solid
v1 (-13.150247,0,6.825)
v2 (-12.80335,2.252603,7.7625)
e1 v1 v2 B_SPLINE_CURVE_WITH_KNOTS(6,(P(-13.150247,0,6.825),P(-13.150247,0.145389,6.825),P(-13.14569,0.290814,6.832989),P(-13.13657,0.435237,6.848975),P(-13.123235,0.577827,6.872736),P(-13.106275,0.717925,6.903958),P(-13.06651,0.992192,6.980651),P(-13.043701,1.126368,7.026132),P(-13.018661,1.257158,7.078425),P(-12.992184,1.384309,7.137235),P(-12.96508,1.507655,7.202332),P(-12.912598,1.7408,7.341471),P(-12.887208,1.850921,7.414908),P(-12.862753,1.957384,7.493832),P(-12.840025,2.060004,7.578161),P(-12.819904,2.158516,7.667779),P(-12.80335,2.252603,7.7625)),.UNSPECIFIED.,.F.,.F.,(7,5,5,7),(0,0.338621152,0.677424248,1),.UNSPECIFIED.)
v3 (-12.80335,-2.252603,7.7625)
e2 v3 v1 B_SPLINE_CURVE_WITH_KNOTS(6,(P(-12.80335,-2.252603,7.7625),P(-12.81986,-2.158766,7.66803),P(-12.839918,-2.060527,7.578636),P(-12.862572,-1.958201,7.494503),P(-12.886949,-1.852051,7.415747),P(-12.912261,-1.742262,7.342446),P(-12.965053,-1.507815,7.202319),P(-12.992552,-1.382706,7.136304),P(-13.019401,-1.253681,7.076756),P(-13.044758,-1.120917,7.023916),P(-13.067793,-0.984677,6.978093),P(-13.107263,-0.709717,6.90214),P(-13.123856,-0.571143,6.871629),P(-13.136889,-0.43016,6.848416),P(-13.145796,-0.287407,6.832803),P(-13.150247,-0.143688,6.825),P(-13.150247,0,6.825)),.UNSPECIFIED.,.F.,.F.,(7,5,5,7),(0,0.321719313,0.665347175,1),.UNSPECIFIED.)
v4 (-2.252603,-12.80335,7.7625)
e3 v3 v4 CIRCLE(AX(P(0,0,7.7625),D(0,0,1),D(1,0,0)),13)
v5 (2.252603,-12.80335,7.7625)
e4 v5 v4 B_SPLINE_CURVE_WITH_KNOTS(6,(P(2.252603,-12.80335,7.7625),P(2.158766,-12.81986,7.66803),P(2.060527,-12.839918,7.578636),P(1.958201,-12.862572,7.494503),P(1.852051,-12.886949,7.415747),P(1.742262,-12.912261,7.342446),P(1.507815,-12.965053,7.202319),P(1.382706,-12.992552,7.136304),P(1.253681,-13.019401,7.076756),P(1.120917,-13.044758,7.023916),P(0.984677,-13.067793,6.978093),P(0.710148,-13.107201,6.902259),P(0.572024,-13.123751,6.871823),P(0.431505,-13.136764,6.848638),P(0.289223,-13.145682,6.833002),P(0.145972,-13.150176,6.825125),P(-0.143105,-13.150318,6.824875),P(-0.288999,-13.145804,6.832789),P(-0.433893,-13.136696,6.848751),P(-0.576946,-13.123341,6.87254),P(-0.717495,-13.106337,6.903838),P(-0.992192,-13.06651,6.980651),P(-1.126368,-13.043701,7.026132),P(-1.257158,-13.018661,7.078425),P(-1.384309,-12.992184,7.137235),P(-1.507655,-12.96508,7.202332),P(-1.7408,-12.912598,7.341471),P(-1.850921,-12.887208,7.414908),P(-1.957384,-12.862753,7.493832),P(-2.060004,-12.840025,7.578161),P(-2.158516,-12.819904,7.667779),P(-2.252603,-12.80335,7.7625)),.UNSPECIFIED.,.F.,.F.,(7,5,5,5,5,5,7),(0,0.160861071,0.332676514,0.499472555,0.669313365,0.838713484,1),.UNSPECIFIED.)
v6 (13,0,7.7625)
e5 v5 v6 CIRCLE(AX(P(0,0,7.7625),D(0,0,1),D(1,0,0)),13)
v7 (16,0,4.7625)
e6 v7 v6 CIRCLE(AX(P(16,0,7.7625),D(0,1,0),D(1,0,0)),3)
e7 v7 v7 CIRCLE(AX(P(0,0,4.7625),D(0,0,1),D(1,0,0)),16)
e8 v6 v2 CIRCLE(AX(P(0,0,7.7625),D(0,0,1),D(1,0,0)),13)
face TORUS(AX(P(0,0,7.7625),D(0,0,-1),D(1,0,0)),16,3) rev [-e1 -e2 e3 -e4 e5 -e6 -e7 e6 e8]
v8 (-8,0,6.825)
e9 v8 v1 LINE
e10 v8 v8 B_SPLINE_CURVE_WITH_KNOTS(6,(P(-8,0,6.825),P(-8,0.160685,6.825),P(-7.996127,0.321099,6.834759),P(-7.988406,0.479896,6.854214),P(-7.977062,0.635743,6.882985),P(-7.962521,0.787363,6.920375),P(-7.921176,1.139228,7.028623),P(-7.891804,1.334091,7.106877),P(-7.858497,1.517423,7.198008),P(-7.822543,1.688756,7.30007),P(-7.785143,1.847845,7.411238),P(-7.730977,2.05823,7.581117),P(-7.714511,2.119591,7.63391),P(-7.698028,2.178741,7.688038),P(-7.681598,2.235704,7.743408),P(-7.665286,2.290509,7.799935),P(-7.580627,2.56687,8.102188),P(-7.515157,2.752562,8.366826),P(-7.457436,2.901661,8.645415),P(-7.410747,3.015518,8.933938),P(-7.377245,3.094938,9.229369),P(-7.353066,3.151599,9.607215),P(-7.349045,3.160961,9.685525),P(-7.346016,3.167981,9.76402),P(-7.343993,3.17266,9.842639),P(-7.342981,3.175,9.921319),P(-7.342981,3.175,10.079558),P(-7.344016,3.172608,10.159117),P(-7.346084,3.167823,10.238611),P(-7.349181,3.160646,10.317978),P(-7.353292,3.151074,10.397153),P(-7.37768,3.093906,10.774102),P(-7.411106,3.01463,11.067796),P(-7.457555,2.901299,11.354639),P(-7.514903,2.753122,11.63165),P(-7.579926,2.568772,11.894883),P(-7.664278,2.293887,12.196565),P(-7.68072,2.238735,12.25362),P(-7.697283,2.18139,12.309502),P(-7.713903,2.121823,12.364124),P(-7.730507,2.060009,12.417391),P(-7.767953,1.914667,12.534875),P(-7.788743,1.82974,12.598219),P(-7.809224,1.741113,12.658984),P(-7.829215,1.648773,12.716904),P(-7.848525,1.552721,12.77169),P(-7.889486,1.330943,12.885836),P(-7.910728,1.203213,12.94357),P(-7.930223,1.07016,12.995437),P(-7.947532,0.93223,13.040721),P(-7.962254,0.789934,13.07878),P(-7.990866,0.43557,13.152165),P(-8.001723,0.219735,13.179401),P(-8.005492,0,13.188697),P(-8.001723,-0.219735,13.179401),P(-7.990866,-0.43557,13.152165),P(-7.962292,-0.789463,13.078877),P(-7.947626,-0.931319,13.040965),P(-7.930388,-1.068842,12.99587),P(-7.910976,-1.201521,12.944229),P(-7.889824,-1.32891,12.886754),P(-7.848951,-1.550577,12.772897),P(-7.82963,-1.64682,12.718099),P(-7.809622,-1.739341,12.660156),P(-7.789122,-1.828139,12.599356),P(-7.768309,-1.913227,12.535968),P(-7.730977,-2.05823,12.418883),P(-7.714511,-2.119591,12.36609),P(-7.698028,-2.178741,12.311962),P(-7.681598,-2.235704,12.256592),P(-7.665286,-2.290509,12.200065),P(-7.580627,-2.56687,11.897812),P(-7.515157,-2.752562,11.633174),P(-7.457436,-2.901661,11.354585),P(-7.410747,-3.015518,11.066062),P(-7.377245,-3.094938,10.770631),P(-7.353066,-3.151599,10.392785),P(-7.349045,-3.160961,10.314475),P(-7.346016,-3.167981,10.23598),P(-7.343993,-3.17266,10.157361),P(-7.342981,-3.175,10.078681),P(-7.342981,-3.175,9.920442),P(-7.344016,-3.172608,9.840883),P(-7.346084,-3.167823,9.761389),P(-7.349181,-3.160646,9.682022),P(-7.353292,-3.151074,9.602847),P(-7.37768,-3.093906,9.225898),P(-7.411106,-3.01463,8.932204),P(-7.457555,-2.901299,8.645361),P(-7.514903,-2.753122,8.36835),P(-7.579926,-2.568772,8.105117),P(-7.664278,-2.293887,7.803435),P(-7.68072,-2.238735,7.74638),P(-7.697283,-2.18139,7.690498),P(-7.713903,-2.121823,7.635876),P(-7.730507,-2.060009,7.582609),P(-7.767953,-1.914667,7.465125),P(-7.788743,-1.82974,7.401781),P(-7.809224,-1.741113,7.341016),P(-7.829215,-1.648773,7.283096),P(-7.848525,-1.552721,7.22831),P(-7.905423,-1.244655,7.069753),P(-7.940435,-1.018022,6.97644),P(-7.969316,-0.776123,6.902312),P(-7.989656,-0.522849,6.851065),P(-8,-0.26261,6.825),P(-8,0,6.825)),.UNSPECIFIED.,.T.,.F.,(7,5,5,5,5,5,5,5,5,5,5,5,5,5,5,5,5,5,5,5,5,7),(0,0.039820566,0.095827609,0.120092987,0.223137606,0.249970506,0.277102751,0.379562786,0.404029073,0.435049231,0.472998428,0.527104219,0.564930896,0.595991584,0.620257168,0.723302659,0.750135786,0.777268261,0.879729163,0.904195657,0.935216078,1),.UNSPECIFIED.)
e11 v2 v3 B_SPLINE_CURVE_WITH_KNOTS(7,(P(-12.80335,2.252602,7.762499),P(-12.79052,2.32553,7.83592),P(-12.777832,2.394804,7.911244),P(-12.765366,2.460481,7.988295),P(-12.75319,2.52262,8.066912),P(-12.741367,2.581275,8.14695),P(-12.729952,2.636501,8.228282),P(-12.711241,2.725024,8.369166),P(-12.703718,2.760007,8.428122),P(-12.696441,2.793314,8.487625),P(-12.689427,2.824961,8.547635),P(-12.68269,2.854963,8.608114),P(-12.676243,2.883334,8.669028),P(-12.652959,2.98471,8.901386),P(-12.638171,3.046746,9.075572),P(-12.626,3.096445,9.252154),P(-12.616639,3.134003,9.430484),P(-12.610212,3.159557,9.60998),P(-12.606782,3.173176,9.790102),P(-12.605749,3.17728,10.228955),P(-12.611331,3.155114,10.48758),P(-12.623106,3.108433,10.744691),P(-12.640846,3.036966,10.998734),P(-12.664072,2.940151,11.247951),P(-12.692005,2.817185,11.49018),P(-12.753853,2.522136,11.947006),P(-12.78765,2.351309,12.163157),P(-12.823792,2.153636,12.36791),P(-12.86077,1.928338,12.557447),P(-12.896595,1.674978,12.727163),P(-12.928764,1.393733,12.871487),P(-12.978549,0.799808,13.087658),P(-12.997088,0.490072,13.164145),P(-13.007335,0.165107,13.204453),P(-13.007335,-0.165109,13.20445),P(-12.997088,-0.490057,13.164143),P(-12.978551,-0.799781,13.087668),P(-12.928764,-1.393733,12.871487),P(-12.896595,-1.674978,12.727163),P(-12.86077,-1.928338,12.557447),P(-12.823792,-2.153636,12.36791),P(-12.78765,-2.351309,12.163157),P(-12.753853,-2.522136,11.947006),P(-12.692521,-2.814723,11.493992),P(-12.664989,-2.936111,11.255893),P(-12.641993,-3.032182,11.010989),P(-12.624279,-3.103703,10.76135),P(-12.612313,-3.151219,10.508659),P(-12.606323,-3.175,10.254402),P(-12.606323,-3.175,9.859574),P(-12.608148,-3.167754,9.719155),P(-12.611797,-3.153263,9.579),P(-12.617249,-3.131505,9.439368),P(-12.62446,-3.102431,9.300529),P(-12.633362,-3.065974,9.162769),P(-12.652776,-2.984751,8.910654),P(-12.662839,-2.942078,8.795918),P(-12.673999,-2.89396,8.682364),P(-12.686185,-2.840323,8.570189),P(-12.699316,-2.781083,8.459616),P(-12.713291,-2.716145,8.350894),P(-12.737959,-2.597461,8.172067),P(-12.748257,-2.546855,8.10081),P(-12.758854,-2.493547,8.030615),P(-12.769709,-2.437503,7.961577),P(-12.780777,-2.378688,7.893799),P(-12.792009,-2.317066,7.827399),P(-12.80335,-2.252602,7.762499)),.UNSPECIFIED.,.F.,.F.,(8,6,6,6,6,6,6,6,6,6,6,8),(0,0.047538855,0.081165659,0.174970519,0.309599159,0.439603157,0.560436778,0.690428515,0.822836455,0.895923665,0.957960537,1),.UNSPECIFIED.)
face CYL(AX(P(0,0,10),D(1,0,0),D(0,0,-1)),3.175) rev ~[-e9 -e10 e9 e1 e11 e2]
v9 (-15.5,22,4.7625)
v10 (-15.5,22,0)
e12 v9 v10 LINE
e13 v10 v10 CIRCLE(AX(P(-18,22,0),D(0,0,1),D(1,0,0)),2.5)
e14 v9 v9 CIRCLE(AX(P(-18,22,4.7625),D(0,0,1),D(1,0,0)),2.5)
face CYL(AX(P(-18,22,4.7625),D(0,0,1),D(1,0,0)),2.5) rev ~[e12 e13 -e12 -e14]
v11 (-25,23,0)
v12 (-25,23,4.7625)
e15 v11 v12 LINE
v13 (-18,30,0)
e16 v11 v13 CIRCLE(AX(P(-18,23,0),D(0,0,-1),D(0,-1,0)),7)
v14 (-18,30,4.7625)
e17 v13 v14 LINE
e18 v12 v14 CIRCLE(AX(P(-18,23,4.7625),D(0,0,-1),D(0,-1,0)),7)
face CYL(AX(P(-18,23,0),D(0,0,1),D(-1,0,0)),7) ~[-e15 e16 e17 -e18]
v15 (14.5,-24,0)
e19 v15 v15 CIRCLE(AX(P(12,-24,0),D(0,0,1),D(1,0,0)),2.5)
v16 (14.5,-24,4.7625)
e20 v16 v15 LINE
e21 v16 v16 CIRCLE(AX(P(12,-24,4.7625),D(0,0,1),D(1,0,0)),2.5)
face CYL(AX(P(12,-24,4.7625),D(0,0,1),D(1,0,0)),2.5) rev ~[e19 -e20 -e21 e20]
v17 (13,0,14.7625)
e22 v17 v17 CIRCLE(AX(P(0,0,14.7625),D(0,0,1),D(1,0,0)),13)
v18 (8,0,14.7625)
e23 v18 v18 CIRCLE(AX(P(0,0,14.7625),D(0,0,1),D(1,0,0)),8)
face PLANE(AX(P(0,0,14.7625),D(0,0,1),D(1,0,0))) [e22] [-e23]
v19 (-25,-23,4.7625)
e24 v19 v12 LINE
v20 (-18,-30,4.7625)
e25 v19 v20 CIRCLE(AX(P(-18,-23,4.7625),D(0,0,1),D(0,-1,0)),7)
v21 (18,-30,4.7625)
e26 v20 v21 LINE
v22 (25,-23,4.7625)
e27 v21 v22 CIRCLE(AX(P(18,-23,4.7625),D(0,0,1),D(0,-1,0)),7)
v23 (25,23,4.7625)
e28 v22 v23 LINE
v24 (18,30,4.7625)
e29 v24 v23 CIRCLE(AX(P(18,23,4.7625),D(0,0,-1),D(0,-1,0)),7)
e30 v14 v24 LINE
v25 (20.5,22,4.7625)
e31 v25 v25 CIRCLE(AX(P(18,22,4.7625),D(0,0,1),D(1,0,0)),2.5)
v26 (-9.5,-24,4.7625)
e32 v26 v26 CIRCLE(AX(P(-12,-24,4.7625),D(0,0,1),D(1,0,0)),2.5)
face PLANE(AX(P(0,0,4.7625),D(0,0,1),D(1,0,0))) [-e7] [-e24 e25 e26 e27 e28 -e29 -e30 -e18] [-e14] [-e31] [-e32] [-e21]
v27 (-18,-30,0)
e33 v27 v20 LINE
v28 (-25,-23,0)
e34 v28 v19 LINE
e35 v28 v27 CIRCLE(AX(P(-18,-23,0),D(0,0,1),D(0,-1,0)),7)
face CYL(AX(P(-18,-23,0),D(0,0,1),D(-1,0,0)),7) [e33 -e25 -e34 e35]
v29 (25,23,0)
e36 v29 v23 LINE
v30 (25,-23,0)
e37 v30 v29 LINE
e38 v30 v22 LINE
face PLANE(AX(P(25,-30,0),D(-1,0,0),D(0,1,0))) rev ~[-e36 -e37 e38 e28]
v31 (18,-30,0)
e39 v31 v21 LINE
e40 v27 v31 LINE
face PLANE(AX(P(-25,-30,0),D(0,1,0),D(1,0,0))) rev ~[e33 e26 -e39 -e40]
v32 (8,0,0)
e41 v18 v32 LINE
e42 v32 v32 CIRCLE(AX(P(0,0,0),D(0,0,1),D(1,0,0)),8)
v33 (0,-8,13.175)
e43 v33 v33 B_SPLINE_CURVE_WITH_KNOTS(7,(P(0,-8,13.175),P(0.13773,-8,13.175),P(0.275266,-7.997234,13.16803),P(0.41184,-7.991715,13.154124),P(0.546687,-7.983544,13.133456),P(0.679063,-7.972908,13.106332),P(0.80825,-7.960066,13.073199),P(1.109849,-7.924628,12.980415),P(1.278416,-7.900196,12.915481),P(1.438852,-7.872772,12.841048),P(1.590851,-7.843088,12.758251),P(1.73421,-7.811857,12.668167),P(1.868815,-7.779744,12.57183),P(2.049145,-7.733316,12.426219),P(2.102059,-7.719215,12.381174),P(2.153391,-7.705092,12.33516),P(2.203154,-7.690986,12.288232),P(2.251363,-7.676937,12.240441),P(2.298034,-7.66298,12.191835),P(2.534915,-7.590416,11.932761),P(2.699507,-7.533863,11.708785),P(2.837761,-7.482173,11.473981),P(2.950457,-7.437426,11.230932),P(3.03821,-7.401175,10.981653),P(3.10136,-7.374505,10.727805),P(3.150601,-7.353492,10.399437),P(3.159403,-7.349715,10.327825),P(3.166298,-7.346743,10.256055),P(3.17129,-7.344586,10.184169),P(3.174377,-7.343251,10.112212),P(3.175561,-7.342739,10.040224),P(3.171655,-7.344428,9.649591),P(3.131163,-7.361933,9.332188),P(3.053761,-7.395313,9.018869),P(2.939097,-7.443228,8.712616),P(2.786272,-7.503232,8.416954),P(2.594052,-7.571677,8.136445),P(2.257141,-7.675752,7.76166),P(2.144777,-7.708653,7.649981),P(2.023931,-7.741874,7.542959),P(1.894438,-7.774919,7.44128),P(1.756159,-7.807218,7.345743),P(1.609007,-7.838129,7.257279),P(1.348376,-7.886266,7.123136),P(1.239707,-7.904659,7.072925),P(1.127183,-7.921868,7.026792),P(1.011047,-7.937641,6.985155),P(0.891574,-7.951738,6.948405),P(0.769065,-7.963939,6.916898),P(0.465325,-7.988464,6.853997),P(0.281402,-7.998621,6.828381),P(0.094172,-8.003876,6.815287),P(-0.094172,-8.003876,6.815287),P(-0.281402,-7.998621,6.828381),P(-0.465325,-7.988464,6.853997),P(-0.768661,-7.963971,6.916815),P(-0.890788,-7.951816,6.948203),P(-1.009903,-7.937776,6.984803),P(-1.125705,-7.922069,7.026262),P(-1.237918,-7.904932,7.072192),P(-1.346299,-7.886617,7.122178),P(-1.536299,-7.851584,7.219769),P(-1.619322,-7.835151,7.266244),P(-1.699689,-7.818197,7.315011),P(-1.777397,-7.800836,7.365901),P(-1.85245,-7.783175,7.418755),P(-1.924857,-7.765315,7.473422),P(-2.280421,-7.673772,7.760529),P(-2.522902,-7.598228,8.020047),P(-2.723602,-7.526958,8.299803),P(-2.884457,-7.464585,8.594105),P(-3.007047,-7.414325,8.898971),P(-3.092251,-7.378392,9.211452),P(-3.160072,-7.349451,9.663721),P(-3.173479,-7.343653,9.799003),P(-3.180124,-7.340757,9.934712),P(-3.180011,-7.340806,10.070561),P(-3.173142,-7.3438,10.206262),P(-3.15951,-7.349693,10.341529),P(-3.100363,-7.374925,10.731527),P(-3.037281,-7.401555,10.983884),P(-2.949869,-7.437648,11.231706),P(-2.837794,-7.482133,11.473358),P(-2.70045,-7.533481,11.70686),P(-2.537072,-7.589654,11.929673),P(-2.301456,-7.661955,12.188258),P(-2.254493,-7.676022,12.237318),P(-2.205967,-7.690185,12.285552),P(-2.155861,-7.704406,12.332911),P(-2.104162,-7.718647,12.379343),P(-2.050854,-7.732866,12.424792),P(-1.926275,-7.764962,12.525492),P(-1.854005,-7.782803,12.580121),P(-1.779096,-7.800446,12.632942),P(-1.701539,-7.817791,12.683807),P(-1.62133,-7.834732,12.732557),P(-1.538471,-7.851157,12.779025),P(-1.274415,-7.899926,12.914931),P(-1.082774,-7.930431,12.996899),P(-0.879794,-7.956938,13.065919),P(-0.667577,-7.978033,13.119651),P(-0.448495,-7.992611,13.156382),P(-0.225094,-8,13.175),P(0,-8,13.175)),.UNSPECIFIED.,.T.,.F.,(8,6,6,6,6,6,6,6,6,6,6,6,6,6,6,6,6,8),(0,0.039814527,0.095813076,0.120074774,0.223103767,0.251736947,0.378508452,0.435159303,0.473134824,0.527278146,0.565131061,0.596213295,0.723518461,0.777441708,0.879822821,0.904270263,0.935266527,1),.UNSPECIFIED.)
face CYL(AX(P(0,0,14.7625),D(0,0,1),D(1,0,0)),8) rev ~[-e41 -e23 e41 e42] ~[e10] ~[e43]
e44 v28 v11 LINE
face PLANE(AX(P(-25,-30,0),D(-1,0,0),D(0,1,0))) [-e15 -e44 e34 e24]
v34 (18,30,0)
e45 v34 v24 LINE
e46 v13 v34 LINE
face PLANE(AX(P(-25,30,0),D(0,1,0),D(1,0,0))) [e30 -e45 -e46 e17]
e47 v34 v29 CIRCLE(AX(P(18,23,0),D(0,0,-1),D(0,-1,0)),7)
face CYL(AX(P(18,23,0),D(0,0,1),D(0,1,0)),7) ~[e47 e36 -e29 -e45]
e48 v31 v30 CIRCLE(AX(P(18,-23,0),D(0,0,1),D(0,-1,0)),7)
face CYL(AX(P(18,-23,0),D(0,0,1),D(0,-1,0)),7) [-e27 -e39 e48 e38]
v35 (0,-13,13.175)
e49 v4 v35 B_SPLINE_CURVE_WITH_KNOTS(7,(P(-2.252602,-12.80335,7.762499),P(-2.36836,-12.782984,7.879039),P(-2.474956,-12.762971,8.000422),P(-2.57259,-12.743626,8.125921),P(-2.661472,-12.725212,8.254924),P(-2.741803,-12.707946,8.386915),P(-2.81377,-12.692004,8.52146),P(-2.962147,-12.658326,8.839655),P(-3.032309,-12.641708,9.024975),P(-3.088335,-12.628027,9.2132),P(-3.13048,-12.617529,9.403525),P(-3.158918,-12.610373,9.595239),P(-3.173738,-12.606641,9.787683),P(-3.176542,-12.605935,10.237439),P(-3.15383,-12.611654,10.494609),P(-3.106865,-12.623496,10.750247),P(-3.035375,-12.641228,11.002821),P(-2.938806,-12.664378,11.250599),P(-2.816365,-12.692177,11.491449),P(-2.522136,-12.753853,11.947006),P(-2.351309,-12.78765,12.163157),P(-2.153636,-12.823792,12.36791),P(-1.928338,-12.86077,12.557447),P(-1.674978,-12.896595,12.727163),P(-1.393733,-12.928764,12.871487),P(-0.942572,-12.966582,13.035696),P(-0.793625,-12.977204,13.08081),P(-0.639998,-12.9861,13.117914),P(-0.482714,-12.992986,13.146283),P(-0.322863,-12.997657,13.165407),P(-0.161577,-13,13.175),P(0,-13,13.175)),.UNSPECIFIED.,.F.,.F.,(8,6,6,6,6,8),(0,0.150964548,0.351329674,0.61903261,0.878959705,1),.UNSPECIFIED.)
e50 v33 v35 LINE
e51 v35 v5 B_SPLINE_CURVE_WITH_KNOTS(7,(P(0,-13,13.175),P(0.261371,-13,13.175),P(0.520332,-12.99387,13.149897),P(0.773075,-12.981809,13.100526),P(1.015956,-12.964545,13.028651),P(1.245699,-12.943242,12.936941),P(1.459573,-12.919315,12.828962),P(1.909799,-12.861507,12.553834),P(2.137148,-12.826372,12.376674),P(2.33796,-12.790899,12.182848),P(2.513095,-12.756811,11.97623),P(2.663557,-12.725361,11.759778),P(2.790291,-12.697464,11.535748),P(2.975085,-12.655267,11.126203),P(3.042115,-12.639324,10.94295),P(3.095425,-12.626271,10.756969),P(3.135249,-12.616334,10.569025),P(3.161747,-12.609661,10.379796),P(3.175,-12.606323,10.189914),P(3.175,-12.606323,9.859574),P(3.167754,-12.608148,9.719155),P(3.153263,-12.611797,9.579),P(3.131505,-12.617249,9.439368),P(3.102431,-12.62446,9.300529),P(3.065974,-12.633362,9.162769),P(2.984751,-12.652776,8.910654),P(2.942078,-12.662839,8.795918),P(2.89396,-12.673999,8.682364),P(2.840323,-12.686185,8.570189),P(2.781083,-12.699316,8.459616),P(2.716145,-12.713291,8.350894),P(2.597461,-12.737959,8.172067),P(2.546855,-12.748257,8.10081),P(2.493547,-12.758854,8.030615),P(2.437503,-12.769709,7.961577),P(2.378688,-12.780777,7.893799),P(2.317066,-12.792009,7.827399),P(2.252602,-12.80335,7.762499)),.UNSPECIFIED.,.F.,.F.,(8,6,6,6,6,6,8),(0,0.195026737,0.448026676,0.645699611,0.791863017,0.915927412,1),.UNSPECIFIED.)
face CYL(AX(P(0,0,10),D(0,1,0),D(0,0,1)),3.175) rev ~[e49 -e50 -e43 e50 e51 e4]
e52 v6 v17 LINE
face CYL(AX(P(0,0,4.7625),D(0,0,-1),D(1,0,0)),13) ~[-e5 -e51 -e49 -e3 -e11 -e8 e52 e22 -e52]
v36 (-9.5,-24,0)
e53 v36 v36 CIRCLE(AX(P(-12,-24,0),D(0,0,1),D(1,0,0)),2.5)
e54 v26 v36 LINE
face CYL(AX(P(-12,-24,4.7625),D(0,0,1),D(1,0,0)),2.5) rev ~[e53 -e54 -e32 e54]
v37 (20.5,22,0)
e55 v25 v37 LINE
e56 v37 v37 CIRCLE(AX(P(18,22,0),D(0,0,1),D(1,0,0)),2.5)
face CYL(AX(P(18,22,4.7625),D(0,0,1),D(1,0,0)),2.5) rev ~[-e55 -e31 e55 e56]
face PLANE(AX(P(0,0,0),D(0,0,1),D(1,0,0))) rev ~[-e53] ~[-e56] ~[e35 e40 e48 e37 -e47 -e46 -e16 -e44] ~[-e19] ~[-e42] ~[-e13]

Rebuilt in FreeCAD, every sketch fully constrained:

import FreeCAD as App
import Part
import Sketcher

V = App.Vector


def edges_at(feature, points):
    """Names of the edges that pass closest to the given points."""
    edges = feature.Shape.Edges
    near = lambda p: min(range(len(edges)), key=lambda i: edges[i].distToShape(Part.Vertex(*p))[0])
    return sorted({f"Edge{near(p) + 1}" for p in points})


def add_polygon(sketch, points):
    """Adds a closed chain of lines whose ends are joined by coincident constraints."""
    first, n = sketch.GeometryCount, len(points)
    for a, b in zip(points, points[1:] + points[:1]):
        sketch.addGeometry(Part.LineSegment(App.Vector(*a, 0), App.Vector(*b, 0)), False)
    for i in range(n):
        sketch.addConstraint(Sketcher.Constraint("Coincident", first + i, 2, first + (i + 1) % n, 1))

doc = App.newDocument("Part")
body = doc.addObject("PartDesign::Body", "Body")

# Sketch on XY plane
sketch1 = doc.addObject("Sketcher::SketchObject", "Sketch")
body.addObject(sketch1)
sketch1.AttachmentSupport = (doc.XY_Plane, [""])
sketch1.MapMode = "FlatFace"
add_polygon(sketch1, [(-25, 30), (-25, -30), (25, -30), (25, 30)])  # lines 0-3
sketch1.addConstraint([
    Sketcher.Constraint("Vertical", 0),
    Sketcher.Constraint("Horizontal", 1),
    Sketcher.Constraint("Vertical", 2),
    Sketcher.Constraint("Horizontal", 3),
    Sketcher.Constraint("Symmetric", 0, 2, 2, 2, -1, 1),
    Sketcher.Constraint("DistanceX", 1, 1, 1, 2, 50.0),
    Sketcher.Constraint("DistanceY", 0, 2, 0, 1, 60.0),
])
pad1 = doc.addObject("PartDesign::Pad", "Pad")
body.addObject(pad1)
pad1.Profile = sketch1
pad1.Length = 4.7625

# Sketch on XY plane
sketch2 = doc.addObject("Sketcher::SketchObject", "Sketch001")
body.addObject(sketch2)
sketch2.AttachmentSupport = (doc.XY_Plane, [""])
sketch2.MapMode = "FlatFace"
sketch2.AttachmentOffset = App.Placement(V(0, 0, 4.7625), App.Rotation())
sketch2.addGeometry(Part.Circle(V(0, 0, 0), V(0, 0, 1), 13), False)
sketch2.addConstraint([
    Sketcher.Constraint("Coincident", 0, 3, -1, 1),
    Sketcher.Constraint("Diameter", 0, 26.0),
])
pad2 = doc.addObject("PartDesign::Pad", "Pad001")
body.addObject(pad2)
pad2.Profile = sketch2
pad2.Length = 10

# Sketch on XY plane
sketch3 = doc.addObject("Sketcher::SketchObject", "Sketch002")
body.addObject(sketch3)
sketch3.AttachmentSupport = (doc.XY_Plane, [""])
sketch3.MapMode = "FlatFace"
sketch3.AttachmentOffset = App.Placement(V(0, 0, 14.7625), App.Rotation())
sketch3.addGeometry(Part.Circle(V(0, 0, 0), V(0, 0, 1), 8), False)
sketch3.addConstraint([
    Sketcher.Constraint("Coincident", 0, 3, -1, 1),
    Sketcher.Constraint("Diameter", 0, 16.0),
])
pocket1 = doc.addObject("PartDesign::Pocket", "Pocket")
body.addObject(pocket1)
pocket1.Profile = sketch3
pocket1.Type = "ThroughAll"

# Sketch on XY plane
sketch4 = doc.addObject("Sketcher::SketchObject", "Sketch003")
body.addObject(sketch4)
sketch4.AttachmentSupport = (doc.XY_Plane, [""])
sketch4.MapMode = "FlatFace"
sketch4.AttachmentOffset = App.Placement(V(0, 0, 4.7625), App.Rotation())
sketch4.addGeometry([
    Part.Circle(V(18, 22, 0), V(0, 0, 1), 2.5),
    Part.Circle(V(12, -24, 0), V(0, 0, 1), 2.5),
    Part.Circle(V(-12, -24, 0), V(0, 0, 1), 2.5),
    Part.Circle(V(-18, 22, 0), V(0, 0, 1), 2.5),
], False)
sketch4.addConstraint([
    Sketcher.Constraint("Equal", 0, 1),
    Sketcher.Constraint("Equal", 1, 2),
    Sketcher.Constraint("Equal", 2, 3),
    Sketcher.Constraint("Symmetric", 1, 3, 2, 3, -2),
    Sketcher.Constraint("Symmetric", 0, 3, 3, 3, -2),
    Sketcher.Constraint("Diameter", 0, 5.0),
    Sketcher.Constraint("DistanceX", -1, 1, 0, 3, 18.0),
    Sketcher.Constraint("DistanceY", -1, 1, 0, 3, 22.0),
    Sketcher.Constraint("DistanceX", -1, 1, 1, 3, 12.0),
    Sketcher.Constraint("DistanceY", 1, 3, -1, 1, 24.0),
])
pocket2 = doc.addObject("PartDesign::Pocket", "Pocket001")
body.addObject(pocket2)
pocket2.Profile = sketch4
pocket2.Type = "ThroughAll"
doc.recompute()

fillet = doc.addObject("PartDesign::Fillet", "Fillet")
body.addObject(fillet)
fillet.Base = (pocket2, edges_at(pocket2, [(-13, 0, 4.763)]))
fillet.Radius = 3
doc.recompute()

fillet2 = doc.addObject("PartDesign::Fillet", "Fillet001")
body.addObject(fillet2)
fillet2.Base = (fillet, edges_at(fillet, [
    (25, -30, 2.381),
    (-25, -30, 2.381),
    (-25, 30, 2.381),
    (25, 30, 2.381),
]))
fillet2.Radius = 7

# Sketch on XZ plane
sketch5 = doc.addObject("Sketcher::SketchObject", "Sketch004")
body.addObject(sketch5)
sketch5.AttachmentSupport = (doc.XZ_Plane, [""])
sketch5.MapMode = "FlatFace"
sketch5.addGeometry(Part.Circle(V(0, 10, 0), V(0, 0, 1), 3.175), False)
sketch5.addConstraint([
    Sketcher.Constraint("PointOnObject", 0, 3, -2),
    Sketcher.Constraint("Diameter", 0, 6.35),
    Sketcher.Constraint("DistanceY", -1, 1, 0, 3, 10.0),
])
pocket3 = doc.addObject("PartDesign::Pocket", "Pocket002")
body.addObject(pocket3)
pocket3.Profile = sketch5
pocket3.Type = "ThroughAll"
pocket3.Reversed = True

# Sketch on YZ plane
sketch6 = doc.addObject("Sketcher::SketchObject", "Sketch005")
body.addObject(sketch6)
sketch6.AttachmentSupport = (doc.YZ_Plane, [""])
sketch6.MapMode = "FlatFace"
sketch6.addGeometry(Part.Circle(V(0, 10, 0), V(0, 0, 1), 3.175), False)
sketch6.addConstraint([
    Sketcher.Constraint("PointOnObject", 0, 3, -2),
    Sketcher.Constraint("Diameter", 0, 6.35),
    Sketcher.Constraint("DistanceY", -1, 1, 0, 3, 10.0),
])
pocket4 = doc.addObject("PartDesign::Pocket", "Pocket003")
body.addObject(pocket4)
pocket4.Profile = sketch6
pocket4.Type = "ThroughAll"

doc.recompute()
